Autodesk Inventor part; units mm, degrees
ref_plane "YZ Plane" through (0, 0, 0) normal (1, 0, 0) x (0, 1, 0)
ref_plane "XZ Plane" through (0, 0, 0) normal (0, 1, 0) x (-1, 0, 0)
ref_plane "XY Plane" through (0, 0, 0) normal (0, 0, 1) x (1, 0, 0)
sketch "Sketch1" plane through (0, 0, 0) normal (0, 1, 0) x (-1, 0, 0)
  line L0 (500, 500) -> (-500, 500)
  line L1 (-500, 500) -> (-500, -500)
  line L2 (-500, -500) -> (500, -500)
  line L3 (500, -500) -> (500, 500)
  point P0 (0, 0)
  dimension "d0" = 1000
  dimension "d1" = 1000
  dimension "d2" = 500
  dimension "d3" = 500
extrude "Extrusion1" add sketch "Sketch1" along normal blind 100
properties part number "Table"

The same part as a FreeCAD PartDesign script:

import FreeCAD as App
import Part
import Sketcher
Q = App.Units.Quantity


def add_polygon(sketch, points):
    """Adds a closed chain of lines whose ends are joined by coincident constraints."""
    first, n = sketch.GeometryCount, len(points)
    for a, b in zip(points, points[1:] + points[:1]):
        sketch.addGeometry(Part.LineSegment(App.Vector(*a, 0), App.Vector(*b, 0)), False)
    for i in range(n):
        sketch.addConstraint(Sketcher.Constraint("Coincident", first + i, 2, first + (i + 1) % n, 1))

doc = App.newDocument("Part")
params = doc.addObject("Spreadsheet::Sheet", "Params")
for row, (alias, value) in enumerate([
    ("sketch1_width", "1000 mm"),
    ("pad1_length", "100 mm"),
], start=1):
    params.set(f"A{row}", alias)
    params.set(f"B{row}", "=" + value)
    params.setAlias(f"B{row}", alias)

body = doc.addObject("PartDesign::Body", "Body")

sketch1 = body.newObject("Sketcher::SketchObject", "Sketch")
sketch1.AttachmentSupport = (doc.getObject("XZ_Plane"), [""])
sketch1.MapMode = "FlatFace"
add_polygon(sketch1, [(-500, -500), (-500, 500), (500, 500), (500, -500)])
sketch1.addConstraint(Sketcher.Constraint("Vertical", 0))
sketch1.addConstraint(Sketcher.Constraint("Horizontal", 1))
sketch1.addConstraint(Sketcher.Constraint("Vertical", 2))
sketch1.addConstraint(Sketcher.Constraint("Horizontal", 3))
sketch1.addConstraint(Sketcher.Constraint("Symmetric", 0, 2, 2, 2, -1, 1))
sketch1.addConstraint(Sketcher.Constraint("Equal", 3, 0))
sketch1.addConstraint(Sketcher.Constraint("DistanceX", 1, 1, 1, 2, Q("1000 mm")))
sketch1.setExpression("Constraints[10]", "Params.sketch1_width")
pad1 = body.newObject("PartDesign::Pad", "Pad")
pad1.Profile = sketch1
pad1.setExpression("Length", "Params.pad1_length")
pad1.Reversed = True

doc.recompute()
